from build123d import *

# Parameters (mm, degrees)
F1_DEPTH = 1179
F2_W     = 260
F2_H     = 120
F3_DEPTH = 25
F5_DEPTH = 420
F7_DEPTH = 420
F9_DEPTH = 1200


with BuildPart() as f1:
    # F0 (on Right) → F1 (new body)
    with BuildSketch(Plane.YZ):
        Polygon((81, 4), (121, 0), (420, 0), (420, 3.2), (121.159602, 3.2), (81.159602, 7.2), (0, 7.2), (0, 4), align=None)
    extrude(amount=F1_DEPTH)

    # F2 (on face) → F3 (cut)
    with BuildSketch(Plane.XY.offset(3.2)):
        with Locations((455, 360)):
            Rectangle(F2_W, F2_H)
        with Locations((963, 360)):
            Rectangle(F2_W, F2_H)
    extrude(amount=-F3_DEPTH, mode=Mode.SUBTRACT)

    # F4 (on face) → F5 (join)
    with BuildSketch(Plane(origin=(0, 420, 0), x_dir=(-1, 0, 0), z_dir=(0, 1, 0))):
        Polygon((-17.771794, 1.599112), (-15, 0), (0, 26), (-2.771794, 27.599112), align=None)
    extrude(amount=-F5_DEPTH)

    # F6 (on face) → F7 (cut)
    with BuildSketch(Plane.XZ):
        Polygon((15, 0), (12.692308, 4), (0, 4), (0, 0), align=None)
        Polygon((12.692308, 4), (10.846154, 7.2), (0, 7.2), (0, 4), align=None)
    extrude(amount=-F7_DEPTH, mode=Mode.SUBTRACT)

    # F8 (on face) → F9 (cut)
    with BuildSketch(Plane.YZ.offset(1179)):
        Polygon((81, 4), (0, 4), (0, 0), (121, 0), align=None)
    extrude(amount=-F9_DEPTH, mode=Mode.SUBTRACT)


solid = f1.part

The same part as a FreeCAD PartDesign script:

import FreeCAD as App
import Part
import Sketcher
Q = App.Units.Quantity

doc = App.newDocument("Part")
body = doc.addObject("PartDesign::Body", "Body")

sketch1 = body.newObject("Sketcher::SketchObject", "Sketch")
sketch1.AttachmentSupport = (doc.getObject("YZ_Plane"), [""])
sketch1.MapMode = "FlatFace"
sketch1.addGeometry([
    Part.LineSegment(App.Vector(81, 4, 0), App.Vector(121, 0, 0)),
    Part.LineSegment(App.Vector(121, 0, 0), App.Vector(420, 0, 0)),
    Part.LineSegment(App.Vector(420, 0, 0), App.Vector(420, 3.2, 0)),
    Part.LineSegment(App.Vector(420, 3.2, 0), App.Vector(121.2, 3.2, 0)),
    Part.LineSegment(App.Vector(121.2, 3.2, 0), App.Vector(81.2, 7.2, 0)),
    Part.LineSegment(App.Vector(81.2, 7.2, 0), App.Vector(0, 7.2, 0)),
    Part.LineSegment(App.Vector(0, 7.2, 0), App.Vector(0, 4, 0)),
    Part.LineSegment(App.Vector(0, 4, 0), App.Vector(81, 4, 0)),
], False)
sketch1.addConstraint([
    Sketcher.Constraint("Coincident", 0, 2, 1, 1),
    Sketcher.Constraint("Coincident", 1, 2, 2, 1),
    Sketcher.Constraint("Coincident", 2, 2, 3, 1),
    Sketcher.Constraint("Coincident", 3, 2, 4, 1),
    Sketcher.Constraint("Coincident", 4, 2, 5, 1),
    Sketcher.Constraint("Coincident", 5, 2, 6, 1),
    Sketcher.Constraint("Coincident", 6, 2, 7, 1),
    Sketcher.Constraint("Coincident", 7, 2, 0, 1),
    Sketcher.Constraint("Horizontal", 1),
    Sketcher.Constraint("Vertical", 2),
    Sketcher.Constraint("Horizontal", 3),
    Sketcher.Constraint("Horizontal", 5),
    Sketcher.Constraint("Vertical", 6),
    Sketcher.Constraint("Horizontal", 7),
    Sketcher.Constraint("PointOnObject", 0, 2, -1),
    Sketcher.Constraint("PointOnObject", 5, 2, -2),
    Sketcher.Constraint("Parallel", 0, 4),
    Sketcher.Constraint("Equal", 2, 6),
    Sketcher.Constraint("DistanceX", 1, 1, 1, 2, Q("299 mm")),
    Sketcher.Constraint("DistanceX", 7, 1, 7, 2, Q("81 mm")),
    Sketcher.Constraint("DistanceY", 2, 1, 2, 2, Q("3.2 mm")),
    Sketcher.Constraint("DistanceX", -1, 1, 0, 2, Q("121 mm")),
    Sketcher.Constraint("DistanceY", -1, 1, 6, 2, Q("4 mm")),
    Sketcher.Constraint("DistanceX", 3, 2, 3, 1, Q("298.840398 mm")),
])
pad1 = body.newObject("PartDesign::Pad", "Pad")
pad1.Profile = sketch1
pad1.Length = 1179

sketch2 = body.newObject("Sketcher::SketchObject", "Sketch001")
sketch2.AttachmentSupport = (doc.getObject("XY_Plane"), [""])
sketch2.MapMode = "FlatFace"
sketch2.AttachmentOffset = App.Placement(App.Vector(0, 0, 3.2), App.Rotation())
sketch2.addGeometry([
    Part.LineSegment(App.Vector(325, 420, 0), App.Vector(325, 300, 0)),
    Part.LineSegment(App.Vector(325, 300, 0), App.Vector(585, 300, 0)),
    Part.LineSegment(App.Vector(585, 300, 0), App.Vector(585, 420, 0)),
    Part.LineSegment(App.Vector(585, 420, 0), App.Vector(325, 420, 0)),
    Part.LineSegment(App.Vector(833, 420, 0), App.Vector(833, 300, 0)),
    Part.LineSegment(App.Vector(833, 300, 0), App.Vector(1093, 300, 0)),
    Part.LineSegment(App.Vector(1093, 300, 0), App.Vector(1093, 420, 0)),
    Part.LineSegment(App.Vector(1093, 420, 0), App.Vector(833, 420, 0)),
], False)
sketch2.addConstraint([
    Sketcher.Constraint("Coincident", 0, 2, 1, 1),
    Sketcher.Constraint("Coincident", 1, 2, 2, 1),
    Sketcher.Constraint("Coincident", 2, 2, 3, 1),
    Sketcher.Constraint("Coincident", 3, 2, 0, 1),
    Sketcher.Constraint("Coincident", 4, 2, 5, 1),
    Sketcher.Constraint("Coincident", 5, 2, 6, 1),
    Sketcher.Constraint("Coincident", 6, 2, 7, 1),
    Sketcher.Constraint("Coincident", 7, 2, 4, 1),
    Sketcher.Constraint("Vertical", 0),
    Sketcher.Constraint("Horizontal", 1),
    Sketcher.Constraint("Vertical", 2),
    Sketcher.Constraint("Horizontal", 3),
    Sketcher.Constraint("Vertical", 4),
    Sketcher.Constraint("Horizontal", 5),
    Sketcher.Constraint("Vertical", 6),
    Sketcher.Constraint("Horizontal", 7),
    Sketcher.Constraint("Horizontal", 1, 2, 4, 2),
    Sketcher.Constraint("Horizontal", 3, 2, 6, 2),
    Sketcher.Constraint("Equal", 3, 5),
    Sketcher.Constraint("DistanceX", 1, 1, 1, 2, Q("260 mm")),
    Sketcher.Constraint("DistanceY", 0, 2, 0, 1, Q("120 mm")),
    Sketcher.Constraint("DistanceX", -1, 1, 0, 2, Q("325 mm")),
    Sketcher.Constraint("DistanceY", -1, 1, 0, 2, Q("300 mm")),
    Sketcher.Constraint("DistanceX", -1, 1, 4, 2, Q("833 mm")),
])
pocket1 = body.newObject("PartDesign::Pocket", "Pocket")
pocket1.Profile = sketch2
pocket1.Length = 25

sketch3 = body.newObject("Sketcher::SketchObject", "Sketch002")
sketch3.AttachmentSupport = (doc.getObject("XZ_Plane"), [""])
sketch3.MapMode = "FlatFace"
sketch3.AttachmentOffset = App.Placement(App.Vector(0, 0, -420), App.Rotation())
sketch3.addGeometry([
    Part.LineSegment(App.Vector(17.8, 1.6, 0), App.Vector(15, 0, 0)),
    Part.LineSegment(App.Vector(15, 0, 0), App.Vector(0, 26, 0)),
    Part.LineSegment(App.Vector(0, 26, 0), App.Vector(2.8, 27.6, 0)),
    Part.LineSegment(App.Vector(2.8, 27.6, 0), App.Vector(17.8, 1.6, 0)),
], False)
sketch3.addConstraint([
    Sketcher.Constraint("Coincident", 0, 2, 1, 1),
    Sketcher.Constraint("Coincident", 1, 2, 2, 1),
    Sketcher.Constraint("Coincident", 2, 2, 3, 1),
    Sketcher.Constraint("Coincident", 3, 2, 0, 1),
    Sketcher.Constraint("PointOnObject", 0, 2, -1),
    Sketcher.Constraint("PointOnObject", 1, 2, -2),
    Sketcher.Constraint("Perpendicular", 0, 1),
    Sketcher.Constraint("Perpendicular", 1, 2),
    Sketcher.Constraint("Perpendicular", 2, 3),
    Sketcher.Constraint("DistanceX", -1, 1, 0, 2, Q("15 mm")),
    Sketcher.Constraint("DistanceY", -1, 1, 1, 2, Q("26 mm")),
    Sketcher.Constraint("Distance", 0, Q("3.2 mm")),
])
pad2 = body.newObject("PartDesign::Pad", "Pad001")
pad2.Profile = sketch3
pad2.Length = 420

sketch4 = body.newObject("Sketcher::SketchObject", "Sketch003")
sketch4.AttachmentSupport = (doc.getObject("XZ_Plane"), [""])
sketch4.MapMode = "FlatFace"
sketch4.addGeometry([
    Part.LineSegment(App.Vector(15, 0, 0), App.Vector(12.7, 4, 0)),
    Part.LineSegment(App.Vector(12.7, 4, 0), App.Vector(10.8, 7.2, 0)),
    Part.LineSegment(App.Vector(10.8, 7.2, 0), App.Vector(0, 7.2, 0)),
    Part.LineSegment(App.Vector(0, 7.2, 0), App.Vector(0, 0, 0)),
    Part.LineSegment(App.Vector(0, 0, 0), App.Vector(15, 0, 0)),
], False)
sketch4.addConstraint([
    Sketcher.Constraint("Coincident", 0, 2, 1, 1),
    Sketcher.Constraint("Coincident", 1, 2, 2, 1),
    Sketcher.Constraint("Coincident", 2, 2, 3, 1),
    Sketcher.Constraint("Coincident", 3, 2, 4, 1),
    Sketcher.Constraint("Coincident", 4, 2, 0, 1),
    Sketcher.Constraint("Horizontal", 2),
    Sketcher.Constraint("Vertical", 3),
    Sketcher.Constraint("Horizontal", 4),
    Sketcher.Constraint("Coincident", 3, 2, -1, 1),
    Sketcher.Constraint("Parallel", 0, 1),
    Sketcher.Constraint("DistanceX", 4, 1, 4, 2, Q("15 mm")),
    Sketcher.Constraint("DistanceY", 3, 2, 3, 1, Q("7.2 mm")),
    Sketcher.Constraint("DistanceY", -1, 1, 0, 2, Q("4 mm")),
    Sketcher.Constraint("Distance", 1, Q("3.694358 mm")),
])
pocket2 = body.newObject("PartDesign::Pocket", "Pocket001")
pocket2.Profile = sketch4
pocket2.Length = 420

sketch5 = body.newObject("Sketcher::SketchObject", "Sketch004")
sketch5.AttachmentSupport = (doc.getObject("YZ_Plane"), [""])
sketch5.MapMode = "FlatFace"
sketch5.AttachmentOffset = App.Placement(App.Vector(0, 0, 1179), App.Rotation())
sketch5.addGeometry([
    Part.LineSegment(App.Vector(81, 4, 0), App.Vector(0, 4, 0)),
    Part.LineSegment(App.Vector(0, 4, 0), App.Vector(0, 0, 0)),
    Part.LineSegment(App.Vector(0, 0, 0), App.Vector(121, 0, 0)),
    Part.LineSegment(App.Vector(121, 0, 0), App.Vector(81, 4, 0)),
], False)
sketch5.addConstraint([
    Sketcher.Constraint("Coincident", 0, 2, 1, 1),
    Sketcher.Constraint("Coincident", 1, 2, 2, 1),
    Sketcher.Constraint("Coincident", 2, 2, 3, 1),
    Sketcher.Constraint("Coincident", 3, 2, 0, 1),
    Sketcher.Constraint("Horizontal", 0),
    Sketcher.Constraint("Vertical", 1),
    Sketcher.Constraint("Horizontal", 2),
    Sketcher.Constraint("Coincident", 1, 2, -1, 1),
    Sketcher.Constraint("DistanceX", 0, 2, 0, 1, Q("81 mm")),
    Sketcher.Constraint("DistanceX", 2, 1, 2, 2, Q("121 mm")),
    Sketcher.Constraint("DistanceY", 1, 2, 1, 1, Q("4 mm")),
])
pocket3 = body.newObject("PartDesign::Pocket", "Pocket002")
pocket3.Profile = sketch5
pocket3.Length = 1200

doc.recompute()
